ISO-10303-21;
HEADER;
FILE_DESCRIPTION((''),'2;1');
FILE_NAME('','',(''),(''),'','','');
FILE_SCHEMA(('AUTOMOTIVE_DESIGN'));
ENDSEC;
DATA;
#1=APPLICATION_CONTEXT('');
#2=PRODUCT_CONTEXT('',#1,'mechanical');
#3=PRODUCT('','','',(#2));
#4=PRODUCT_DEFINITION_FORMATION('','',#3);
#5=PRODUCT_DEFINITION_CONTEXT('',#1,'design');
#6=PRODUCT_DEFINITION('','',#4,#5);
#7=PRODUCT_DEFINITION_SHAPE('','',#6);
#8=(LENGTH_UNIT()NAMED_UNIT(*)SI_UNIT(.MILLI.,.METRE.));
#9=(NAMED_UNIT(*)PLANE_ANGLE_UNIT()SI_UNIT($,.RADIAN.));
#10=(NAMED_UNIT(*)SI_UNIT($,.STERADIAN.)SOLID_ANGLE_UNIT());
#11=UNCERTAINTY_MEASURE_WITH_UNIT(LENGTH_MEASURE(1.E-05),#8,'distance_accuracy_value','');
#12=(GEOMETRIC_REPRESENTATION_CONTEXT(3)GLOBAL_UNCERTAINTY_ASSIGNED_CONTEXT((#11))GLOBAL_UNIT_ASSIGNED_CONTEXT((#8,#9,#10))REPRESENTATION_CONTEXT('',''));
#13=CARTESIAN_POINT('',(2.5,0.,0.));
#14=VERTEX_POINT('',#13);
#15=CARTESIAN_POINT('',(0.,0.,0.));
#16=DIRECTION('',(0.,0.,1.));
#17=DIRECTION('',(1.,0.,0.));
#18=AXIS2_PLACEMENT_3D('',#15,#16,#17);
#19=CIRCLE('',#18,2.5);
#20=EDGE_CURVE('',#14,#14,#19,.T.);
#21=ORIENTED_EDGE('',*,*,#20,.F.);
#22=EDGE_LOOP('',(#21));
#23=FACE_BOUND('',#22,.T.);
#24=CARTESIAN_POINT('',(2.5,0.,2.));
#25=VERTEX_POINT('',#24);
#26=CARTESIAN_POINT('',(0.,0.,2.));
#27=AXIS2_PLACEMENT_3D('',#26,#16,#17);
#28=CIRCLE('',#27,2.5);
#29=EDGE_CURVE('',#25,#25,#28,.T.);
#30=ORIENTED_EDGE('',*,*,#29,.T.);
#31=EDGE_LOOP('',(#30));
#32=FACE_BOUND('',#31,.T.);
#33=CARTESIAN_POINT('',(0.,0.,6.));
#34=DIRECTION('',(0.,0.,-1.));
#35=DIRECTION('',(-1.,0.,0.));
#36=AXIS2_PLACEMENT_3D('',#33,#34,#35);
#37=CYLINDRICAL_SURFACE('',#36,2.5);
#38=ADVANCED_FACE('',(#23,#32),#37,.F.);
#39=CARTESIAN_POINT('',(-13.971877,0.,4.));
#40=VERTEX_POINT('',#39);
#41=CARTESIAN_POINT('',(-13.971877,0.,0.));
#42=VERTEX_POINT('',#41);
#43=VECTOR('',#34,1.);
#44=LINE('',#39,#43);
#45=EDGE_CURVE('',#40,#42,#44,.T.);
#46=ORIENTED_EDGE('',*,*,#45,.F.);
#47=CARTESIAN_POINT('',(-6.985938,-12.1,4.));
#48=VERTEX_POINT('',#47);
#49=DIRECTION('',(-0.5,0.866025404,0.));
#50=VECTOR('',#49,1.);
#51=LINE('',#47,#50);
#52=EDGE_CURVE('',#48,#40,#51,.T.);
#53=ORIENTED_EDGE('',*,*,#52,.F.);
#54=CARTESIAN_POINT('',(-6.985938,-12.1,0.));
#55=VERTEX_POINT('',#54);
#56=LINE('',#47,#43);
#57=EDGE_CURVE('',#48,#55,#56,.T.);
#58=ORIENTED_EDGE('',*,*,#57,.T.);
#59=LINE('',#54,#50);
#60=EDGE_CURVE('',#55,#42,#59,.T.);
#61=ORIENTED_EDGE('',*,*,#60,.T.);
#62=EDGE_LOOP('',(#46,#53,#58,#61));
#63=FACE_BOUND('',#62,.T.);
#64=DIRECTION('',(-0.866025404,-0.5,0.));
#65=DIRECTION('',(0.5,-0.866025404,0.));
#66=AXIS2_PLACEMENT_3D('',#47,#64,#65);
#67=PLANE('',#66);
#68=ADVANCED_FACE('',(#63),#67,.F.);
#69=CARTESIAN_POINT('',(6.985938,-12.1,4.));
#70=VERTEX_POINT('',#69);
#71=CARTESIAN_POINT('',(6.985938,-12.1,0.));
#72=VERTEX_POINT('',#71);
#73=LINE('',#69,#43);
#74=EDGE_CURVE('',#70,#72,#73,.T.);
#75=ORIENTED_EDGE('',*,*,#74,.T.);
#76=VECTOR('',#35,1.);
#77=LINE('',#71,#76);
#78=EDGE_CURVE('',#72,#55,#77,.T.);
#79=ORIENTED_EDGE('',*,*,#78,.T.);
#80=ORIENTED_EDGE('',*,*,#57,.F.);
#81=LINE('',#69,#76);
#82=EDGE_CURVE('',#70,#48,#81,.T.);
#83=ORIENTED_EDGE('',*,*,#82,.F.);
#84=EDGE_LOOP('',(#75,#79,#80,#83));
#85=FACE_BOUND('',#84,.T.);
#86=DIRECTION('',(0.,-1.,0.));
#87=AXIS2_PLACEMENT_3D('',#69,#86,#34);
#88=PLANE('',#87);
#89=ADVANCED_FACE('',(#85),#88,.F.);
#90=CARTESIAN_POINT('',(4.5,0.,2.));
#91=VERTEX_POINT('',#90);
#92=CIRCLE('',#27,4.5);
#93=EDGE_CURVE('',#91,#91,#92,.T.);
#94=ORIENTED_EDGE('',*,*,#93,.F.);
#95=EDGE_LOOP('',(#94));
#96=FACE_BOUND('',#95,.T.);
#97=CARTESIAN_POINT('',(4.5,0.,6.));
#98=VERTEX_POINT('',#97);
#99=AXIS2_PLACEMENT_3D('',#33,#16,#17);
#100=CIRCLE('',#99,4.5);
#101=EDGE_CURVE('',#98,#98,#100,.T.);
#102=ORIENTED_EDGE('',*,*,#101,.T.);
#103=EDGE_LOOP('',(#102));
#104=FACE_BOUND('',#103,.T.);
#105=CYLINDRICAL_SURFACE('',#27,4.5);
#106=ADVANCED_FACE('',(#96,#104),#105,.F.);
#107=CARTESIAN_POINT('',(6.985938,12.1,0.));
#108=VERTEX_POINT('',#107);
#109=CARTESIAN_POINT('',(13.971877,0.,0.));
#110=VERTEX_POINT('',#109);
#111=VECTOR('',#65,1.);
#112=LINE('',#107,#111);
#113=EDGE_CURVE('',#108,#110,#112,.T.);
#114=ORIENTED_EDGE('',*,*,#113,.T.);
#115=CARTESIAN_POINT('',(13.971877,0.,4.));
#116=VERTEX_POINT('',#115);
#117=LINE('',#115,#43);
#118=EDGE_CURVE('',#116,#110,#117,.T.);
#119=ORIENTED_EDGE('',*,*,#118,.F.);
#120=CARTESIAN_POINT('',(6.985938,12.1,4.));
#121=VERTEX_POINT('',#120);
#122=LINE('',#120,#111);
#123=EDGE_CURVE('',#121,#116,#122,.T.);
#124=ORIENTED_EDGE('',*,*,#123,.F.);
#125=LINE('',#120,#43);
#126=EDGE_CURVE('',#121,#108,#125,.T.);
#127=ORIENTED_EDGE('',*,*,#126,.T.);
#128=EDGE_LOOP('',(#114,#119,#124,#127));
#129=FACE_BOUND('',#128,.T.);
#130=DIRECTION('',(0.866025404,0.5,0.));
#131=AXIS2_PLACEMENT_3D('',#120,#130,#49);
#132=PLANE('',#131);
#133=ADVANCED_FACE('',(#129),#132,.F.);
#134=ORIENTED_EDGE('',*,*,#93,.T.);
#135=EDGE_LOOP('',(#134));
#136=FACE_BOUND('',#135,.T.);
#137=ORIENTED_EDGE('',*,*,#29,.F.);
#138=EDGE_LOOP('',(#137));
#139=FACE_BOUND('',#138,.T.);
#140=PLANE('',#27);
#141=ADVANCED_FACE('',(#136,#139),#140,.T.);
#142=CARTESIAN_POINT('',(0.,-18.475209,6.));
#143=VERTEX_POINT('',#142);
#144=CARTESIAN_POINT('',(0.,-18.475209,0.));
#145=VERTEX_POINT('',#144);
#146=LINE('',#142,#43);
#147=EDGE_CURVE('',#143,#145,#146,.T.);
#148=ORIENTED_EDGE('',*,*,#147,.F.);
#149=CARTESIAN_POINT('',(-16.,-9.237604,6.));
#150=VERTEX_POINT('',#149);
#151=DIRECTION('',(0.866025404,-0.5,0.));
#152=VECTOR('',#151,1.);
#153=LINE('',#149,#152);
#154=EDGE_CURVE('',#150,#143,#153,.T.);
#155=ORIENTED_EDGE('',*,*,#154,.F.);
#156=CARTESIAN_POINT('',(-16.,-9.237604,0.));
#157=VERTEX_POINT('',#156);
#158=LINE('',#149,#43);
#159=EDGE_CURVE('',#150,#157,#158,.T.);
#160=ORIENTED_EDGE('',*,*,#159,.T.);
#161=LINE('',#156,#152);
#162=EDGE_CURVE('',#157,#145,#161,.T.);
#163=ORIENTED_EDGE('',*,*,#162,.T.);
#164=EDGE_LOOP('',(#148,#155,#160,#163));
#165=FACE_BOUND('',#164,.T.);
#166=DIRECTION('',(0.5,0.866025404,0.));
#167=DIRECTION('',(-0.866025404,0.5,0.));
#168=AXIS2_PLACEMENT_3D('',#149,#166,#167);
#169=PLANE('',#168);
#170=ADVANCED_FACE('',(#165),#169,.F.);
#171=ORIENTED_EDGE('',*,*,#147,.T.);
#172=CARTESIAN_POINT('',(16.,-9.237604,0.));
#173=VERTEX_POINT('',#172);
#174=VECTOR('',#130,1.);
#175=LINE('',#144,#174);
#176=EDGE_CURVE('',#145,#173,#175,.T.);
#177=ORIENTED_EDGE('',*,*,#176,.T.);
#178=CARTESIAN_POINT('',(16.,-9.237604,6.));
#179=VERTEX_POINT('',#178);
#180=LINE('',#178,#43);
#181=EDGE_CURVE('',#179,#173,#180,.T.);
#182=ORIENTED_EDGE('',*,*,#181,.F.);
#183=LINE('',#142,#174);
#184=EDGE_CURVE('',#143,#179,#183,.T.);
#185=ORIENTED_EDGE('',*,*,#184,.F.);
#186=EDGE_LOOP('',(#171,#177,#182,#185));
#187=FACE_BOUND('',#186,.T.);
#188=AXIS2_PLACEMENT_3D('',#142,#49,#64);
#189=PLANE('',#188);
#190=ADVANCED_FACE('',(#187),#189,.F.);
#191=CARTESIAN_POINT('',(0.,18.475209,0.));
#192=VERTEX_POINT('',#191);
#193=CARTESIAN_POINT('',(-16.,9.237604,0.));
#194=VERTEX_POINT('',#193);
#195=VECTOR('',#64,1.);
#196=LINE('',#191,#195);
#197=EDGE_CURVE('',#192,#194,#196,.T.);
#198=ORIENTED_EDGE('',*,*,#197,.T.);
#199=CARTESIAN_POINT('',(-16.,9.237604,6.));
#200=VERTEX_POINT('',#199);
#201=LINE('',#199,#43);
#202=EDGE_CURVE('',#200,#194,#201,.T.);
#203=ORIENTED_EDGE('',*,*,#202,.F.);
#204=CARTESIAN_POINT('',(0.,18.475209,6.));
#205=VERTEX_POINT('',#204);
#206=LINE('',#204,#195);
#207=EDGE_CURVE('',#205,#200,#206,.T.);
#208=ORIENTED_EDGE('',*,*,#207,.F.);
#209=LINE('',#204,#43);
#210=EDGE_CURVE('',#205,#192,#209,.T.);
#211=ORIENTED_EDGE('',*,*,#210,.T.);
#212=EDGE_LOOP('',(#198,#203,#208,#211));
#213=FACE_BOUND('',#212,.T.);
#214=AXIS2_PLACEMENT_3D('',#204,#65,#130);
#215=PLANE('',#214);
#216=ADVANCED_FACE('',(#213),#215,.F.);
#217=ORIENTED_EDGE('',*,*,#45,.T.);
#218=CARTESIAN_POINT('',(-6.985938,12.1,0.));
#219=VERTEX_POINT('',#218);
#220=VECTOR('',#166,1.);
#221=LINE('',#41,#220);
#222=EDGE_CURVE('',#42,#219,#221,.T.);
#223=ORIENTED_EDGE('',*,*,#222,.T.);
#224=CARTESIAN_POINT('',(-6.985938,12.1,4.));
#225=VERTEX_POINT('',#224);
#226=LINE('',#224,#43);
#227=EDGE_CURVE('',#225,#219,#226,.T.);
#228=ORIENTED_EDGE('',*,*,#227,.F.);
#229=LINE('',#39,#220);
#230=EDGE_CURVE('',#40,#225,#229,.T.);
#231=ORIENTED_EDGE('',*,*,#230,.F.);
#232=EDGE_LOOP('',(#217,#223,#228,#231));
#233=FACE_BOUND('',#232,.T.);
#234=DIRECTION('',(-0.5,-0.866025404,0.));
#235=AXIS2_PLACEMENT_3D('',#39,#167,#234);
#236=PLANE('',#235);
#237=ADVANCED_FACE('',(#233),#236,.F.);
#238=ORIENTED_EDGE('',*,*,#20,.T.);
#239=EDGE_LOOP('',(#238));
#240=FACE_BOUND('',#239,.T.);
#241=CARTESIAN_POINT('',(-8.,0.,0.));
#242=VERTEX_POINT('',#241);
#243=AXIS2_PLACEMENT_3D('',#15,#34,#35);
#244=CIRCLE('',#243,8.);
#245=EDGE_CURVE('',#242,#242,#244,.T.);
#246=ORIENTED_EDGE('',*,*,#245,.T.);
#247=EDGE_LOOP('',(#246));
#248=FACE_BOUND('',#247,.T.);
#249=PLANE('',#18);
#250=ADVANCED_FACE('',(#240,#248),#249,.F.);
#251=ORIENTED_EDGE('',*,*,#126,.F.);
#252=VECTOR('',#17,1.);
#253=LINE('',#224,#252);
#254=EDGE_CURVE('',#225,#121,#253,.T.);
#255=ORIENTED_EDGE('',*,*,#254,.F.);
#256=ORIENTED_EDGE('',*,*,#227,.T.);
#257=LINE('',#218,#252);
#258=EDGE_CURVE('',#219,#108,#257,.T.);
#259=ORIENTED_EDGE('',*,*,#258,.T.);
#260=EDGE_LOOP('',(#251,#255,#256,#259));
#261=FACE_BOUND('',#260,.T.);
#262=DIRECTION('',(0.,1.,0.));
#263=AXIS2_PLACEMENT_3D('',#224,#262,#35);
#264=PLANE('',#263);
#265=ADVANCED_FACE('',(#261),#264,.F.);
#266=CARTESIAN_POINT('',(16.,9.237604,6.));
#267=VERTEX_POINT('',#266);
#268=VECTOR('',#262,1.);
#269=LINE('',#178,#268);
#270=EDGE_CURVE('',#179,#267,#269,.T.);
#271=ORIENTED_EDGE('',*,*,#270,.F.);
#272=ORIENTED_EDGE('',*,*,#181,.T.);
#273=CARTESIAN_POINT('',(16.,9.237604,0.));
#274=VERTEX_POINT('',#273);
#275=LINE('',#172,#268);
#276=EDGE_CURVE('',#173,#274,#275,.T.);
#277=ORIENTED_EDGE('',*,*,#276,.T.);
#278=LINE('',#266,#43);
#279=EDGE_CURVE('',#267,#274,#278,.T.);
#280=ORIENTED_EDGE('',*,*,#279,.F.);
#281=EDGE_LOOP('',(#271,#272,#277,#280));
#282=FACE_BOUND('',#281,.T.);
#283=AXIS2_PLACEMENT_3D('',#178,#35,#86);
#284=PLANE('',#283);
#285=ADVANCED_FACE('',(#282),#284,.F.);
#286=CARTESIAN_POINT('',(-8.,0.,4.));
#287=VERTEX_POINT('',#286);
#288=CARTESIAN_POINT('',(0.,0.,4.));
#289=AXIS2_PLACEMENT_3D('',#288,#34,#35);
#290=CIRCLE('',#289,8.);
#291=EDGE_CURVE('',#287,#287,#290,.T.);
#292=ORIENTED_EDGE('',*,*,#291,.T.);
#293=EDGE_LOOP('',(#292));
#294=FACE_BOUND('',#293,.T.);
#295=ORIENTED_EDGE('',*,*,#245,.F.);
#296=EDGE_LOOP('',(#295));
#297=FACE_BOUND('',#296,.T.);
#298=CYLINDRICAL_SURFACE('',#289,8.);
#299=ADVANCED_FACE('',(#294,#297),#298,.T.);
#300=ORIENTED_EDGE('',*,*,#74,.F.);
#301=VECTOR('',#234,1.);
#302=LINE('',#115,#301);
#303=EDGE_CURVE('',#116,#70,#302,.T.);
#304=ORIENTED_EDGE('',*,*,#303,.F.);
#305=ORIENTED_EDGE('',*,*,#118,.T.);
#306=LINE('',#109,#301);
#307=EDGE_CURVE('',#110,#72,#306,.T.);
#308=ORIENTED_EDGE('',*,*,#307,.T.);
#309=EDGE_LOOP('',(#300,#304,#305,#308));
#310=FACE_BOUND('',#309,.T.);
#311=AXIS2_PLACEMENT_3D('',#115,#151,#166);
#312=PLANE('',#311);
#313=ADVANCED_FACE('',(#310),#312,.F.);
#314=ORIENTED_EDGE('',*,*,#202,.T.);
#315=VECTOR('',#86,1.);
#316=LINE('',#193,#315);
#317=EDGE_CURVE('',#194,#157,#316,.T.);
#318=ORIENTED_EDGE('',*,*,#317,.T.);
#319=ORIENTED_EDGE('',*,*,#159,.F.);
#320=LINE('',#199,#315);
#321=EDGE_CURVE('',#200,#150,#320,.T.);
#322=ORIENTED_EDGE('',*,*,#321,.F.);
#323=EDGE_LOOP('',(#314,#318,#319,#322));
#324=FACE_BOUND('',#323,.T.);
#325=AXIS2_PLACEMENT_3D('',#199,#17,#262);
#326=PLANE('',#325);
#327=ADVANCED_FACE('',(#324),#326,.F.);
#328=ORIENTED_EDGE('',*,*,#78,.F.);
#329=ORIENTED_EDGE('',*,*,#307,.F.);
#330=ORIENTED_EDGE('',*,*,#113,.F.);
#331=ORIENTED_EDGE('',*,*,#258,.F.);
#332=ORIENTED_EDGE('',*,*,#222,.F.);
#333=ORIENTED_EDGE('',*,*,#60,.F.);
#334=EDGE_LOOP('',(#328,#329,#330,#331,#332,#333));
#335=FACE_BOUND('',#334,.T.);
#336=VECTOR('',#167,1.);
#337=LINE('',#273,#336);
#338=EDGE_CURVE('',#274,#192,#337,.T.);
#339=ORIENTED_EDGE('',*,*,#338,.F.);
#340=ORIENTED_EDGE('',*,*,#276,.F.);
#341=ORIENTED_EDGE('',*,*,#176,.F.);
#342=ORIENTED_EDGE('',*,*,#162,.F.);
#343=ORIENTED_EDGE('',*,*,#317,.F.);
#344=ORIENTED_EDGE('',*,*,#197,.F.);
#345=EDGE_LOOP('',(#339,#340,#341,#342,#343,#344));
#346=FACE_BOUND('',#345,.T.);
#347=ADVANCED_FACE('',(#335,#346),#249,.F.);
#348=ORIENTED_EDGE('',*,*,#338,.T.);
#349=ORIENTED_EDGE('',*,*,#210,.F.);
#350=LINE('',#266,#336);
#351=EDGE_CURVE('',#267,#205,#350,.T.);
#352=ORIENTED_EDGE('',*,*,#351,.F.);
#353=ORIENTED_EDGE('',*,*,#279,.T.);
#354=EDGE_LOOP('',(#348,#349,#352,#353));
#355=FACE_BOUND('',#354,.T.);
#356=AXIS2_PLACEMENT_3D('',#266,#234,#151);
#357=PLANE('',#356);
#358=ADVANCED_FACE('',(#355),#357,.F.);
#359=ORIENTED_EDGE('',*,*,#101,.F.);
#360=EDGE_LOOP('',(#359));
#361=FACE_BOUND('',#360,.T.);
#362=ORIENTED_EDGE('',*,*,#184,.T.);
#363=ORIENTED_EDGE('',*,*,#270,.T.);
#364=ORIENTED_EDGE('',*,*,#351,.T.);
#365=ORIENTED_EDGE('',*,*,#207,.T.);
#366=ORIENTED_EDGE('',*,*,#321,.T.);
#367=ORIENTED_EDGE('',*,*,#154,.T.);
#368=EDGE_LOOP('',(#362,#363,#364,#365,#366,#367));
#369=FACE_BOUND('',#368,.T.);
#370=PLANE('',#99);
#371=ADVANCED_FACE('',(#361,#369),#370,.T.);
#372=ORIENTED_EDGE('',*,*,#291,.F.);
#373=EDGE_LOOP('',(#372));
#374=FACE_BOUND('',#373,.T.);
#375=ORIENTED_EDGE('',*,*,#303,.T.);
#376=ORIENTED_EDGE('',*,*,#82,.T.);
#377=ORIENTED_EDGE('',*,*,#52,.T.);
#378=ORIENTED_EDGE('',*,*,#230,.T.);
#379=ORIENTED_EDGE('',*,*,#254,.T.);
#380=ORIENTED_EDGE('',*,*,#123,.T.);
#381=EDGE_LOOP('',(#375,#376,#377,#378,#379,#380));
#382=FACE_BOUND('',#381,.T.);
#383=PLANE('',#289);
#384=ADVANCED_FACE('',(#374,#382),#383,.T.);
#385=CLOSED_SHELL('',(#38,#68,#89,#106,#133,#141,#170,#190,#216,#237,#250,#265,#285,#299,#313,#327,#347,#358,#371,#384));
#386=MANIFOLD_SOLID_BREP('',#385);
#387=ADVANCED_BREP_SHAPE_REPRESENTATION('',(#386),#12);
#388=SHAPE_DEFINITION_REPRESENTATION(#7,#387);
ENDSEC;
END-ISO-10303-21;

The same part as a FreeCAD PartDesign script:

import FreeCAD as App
import Part
import Sketcher
from FreeCAD import Vector
Q = App.Units.Quantity


def add_polygon(sketch, points):
    """Adds a closed chain of lines whose ends are joined by coincident constraints."""
    first, n = sketch.GeometryCount, len(points)
    for a, b in zip(points, points[1:] + points[:1]):
        sketch.addGeometry(Part.LineSegment(App.Vector(*a, 0), App.Vector(*b, 0)), False)
    for i in range(n):
        sketch.addConstraint(Sketcher.Constraint("Coincident", first + i, 2, first + (i + 1) % n, 1))

doc = App.newDocument("Part")
body = doc.addObject("PartDesign::Body", "Body")

sketch1 = body.newObject("Sketcher::SketchObject", "Sketch")
sketch1.AttachmentSupport = (doc.getObject("XY_Plane"), [""])
sketch1.MapMode = "FlatFace"
add_polygon(sketch1, [(16, 9.237604), (0, 18.475209), (-16, 9.237604), (-16, -9.237604), (0, -18.475209), (16, -9.237604)])
sketch1.addGeometry(Part.Circle(Vector(0, 0, 0), Vector(0, 0, 1), 2.5), False)
sketch1.addConstraint([
    Sketcher.Constraint("Vertical", 2),
    Sketcher.Constraint("Vertical", 5),
    Sketcher.Constraint("Coincident", 6, 3, -1, 1),
    Sketcher.Constraint("Symmetric", 0, 2, 3, 2, -1, 1),
    Sketcher.Constraint("Symmetric", 1, 2, 4, 2, -1, 1),
    Sketcher.Constraint("PointOnObject", 0, 2, -2),
    Sketcher.Constraint("Parallel", 0, 3),
    Sketcher.Constraint("Horizontal", 2, 2, 4, 2),
    Sketcher.Constraint("Diameter", 6, Q("5 mm")),
    Sketcher.Constraint("Angle", 0, Q("150 deg")),
    Sketcher.Constraint("DistanceX", 1, 2, -1, 1, Q("16 mm")),
    Sketcher.Constraint("DistanceY", 2, 2, 2, 1, Q("18.475209 mm")),
])
pad1 = body.newObject("PartDesign::Pad", "Pad")
pad1.Profile = sketch1
pad1.Length = 6

sketch2 = body.newObject("Sketcher::SketchObject", "Sketch001")
sketch2.AttachmentSupport = (doc.getObject("XY_Plane"), [""])
sketch2.MapMode = "FlatFace"
sketch2.AttachmentOffset = App.Placement(Vector(0, 0, 6), App.Rotation())
sketch2.addGeometry(Part.Circle(Vector(0, 0, 0), Vector(0, 0, 1), 4.5), False)
sketch2.addConstraint([
    Sketcher.Constraint("Coincident", 0, 3, -1, 1),
    Sketcher.Constraint("Diameter", 0, Q("9 mm")),
])
pocket1 = body.newObject("PartDesign::Pocket", "Pocket")
pocket1.Profile = sketch2
pocket1.Length = 4

sketch3 = body.newObject("Sketcher::SketchObject", "Sketch002")
sketch3.AttachmentSupport = (doc.getObject("XY_Plane"), [""])
sketch3.MapMode = "FlatFace"
add_polygon(sketch3, [(-13.971877, 0), (-6.985938, 12.1), (6.985938, 12.1), (13.971877, 0), (6.985938, -12.1), (-6.985938, -12.1)])
sketch3.addGeometry(Part.Circle(Vector(0, 0, 0), Vector(0, 0, 1), 8), False)
sketch3.addConstraint([
    Sketcher.Constraint("Horizontal", 1),
    Sketcher.Constraint("Horizontal", 4),
    Sketcher.Constraint("Coincident", 6, 3, -1, 1),
    Sketcher.Constraint("Symmetric", 0, 2, 3, 2, -1, 1),
    Sketcher.Constraint("Symmetric", 2, 2, 5, 2, -1, 1),
    Sketcher.Constraint("PointOnObject", 2, 2, -1),
    Sketcher.Constraint("Parallel", 2, 5),
    Sketcher.Constraint("Vertical", 1, 2, 3, 2),
    Sketcher.Constraint("Diameter", 6, Q("16 mm")),
    Sketcher.Constraint("Angle", 0, Q("60 deg")),
    Sketcher.Constraint("DistanceY", -1, 1, 0, 2, Q("12.1 mm")),
    Sketcher.Constraint("DistanceX", 1, 1, 1, 2, Q("13.971877 mm")),
])
pocket2 = body.newObject("PartDesign::Pocket", "Pocket001")
pocket2.Profile = sketch3
pocket2.Length = 4
pocket2.Reversed = True

doc.recompute()
